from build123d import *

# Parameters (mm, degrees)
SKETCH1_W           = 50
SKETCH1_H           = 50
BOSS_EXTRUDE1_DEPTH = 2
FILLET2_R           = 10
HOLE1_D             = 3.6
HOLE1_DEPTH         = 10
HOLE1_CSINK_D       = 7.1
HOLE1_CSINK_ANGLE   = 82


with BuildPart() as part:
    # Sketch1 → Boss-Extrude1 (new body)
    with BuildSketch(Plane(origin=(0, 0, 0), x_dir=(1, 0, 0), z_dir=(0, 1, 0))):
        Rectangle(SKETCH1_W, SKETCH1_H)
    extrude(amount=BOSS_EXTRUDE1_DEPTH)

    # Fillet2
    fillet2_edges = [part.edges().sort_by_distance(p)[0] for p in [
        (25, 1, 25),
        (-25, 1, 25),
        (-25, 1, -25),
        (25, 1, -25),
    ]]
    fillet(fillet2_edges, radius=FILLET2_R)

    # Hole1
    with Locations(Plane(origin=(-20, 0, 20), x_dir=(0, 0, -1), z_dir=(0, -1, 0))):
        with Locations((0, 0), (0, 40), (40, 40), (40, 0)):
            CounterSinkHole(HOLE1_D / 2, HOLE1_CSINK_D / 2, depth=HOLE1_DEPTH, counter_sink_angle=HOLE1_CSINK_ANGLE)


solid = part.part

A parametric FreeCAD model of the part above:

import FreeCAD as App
import Part
import Sketcher
from FreeCAD import Vector
Q = App.Units.Quantity


def edges_at(feature, points):
    """Names of the edges that pass closest to the given points."""
    edges = feature.Shape.Edges
    near = lambda p: min(range(len(edges)), key=lambda i: edges[i].distToShape(Part.Vertex(*p))[0])
    return sorted({f"Edge{near(p) + 1}" for p in points})


def add_polygon(sketch, points):
    """Adds a closed chain of lines whose ends are joined by coincident constraints."""
    first, n = sketch.GeometryCount, len(points)
    for a, b in zip(points, points[1:] + points[:1]):
        sketch.addGeometry(Part.LineSegment(App.Vector(*a, 0), App.Vector(*b, 0)), False)
    for i in range(n):
        sketch.addConstraint(Sketcher.Constraint("Coincident", first + i, 2, first + (i + 1) % n, 1))

doc = App.newDocument("Part")
body = doc.addObject("PartDesign::Body", "Body")

sketch1 = doc.addObject("Sketcher::SketchObject", "Sketch")
body.addObject(sketch1)
sketch1.AttachmentSupport = (doc.XZ_Plane, [""])
sketch1.MapMode = "FlatFace"
add_polygon(sketch1, [(-25, -25), (-25, 25), (25, 25), (25, -25)])
sketch1.addConstraint(Sketcher.Constraint("Vertical", 0))
sketch1.addConstraint(Sketcher.Constraint("Horizontal", 1))
sketch1.addConstraint(Sketcher.Constraint("Vertical", 2))
sketch1.addConstraint(Sketcher.Constraint("Horizontal", 3))
sketch1.addConstraint(Sketcher.Constraint("Symmetric", 0, 2, 2, 2, -1, 1))
sketch1.addConstraint(Sketcher.Constraint("Equal", 3, 0))
sketch1.addConstraint(Sketcher.Constraint("DistanceX", 1, 1, 1, 2, Q("50 mm")))
pad1 = doc.addObject("PartDesign::Pad", "Pad")
body.addObject(pad1)
pad1.Profile = sketch1
pad1.Length = 2
pad1.Reversed = True
doc.recompute()

fillet = doc.addObject("PartDesign::Fillet", "Fillet")
body.addObject(fillet)
fillet.Base = (pad1, edges_at(pad1, [
    (25, 1, 25),
    (-25, 1, 25),
    (-25, 1, -25),
    (25, 1, -25),
]))
fillet.Radius = 10

sketch2 = doc.addObject("Sketcher::SketchObject", "Sketch001")
body.addObject(sketch2)
sketch2.AttachmentSupport = (doc.XZ_Plane, [""])
sketch2.MapMode = "FlatFace"
sketch2.addGeometry(Part.Circle(Vector(-20, 20, 0), Vector(0, 0, 1), 1.8), False)
sketch2.addGeometry(Part.Circle(Vector(20, 20, 0), Vector(0, 0, 1), 1.8), False)
sketch2.addGeometry(Part.Circle(Vector(20, -20, 0), Vector(0, 0, 1), 1.8), False)
sketch2.addGeometry(Part.Circle(Vector(-20, -20, 0), Vector(0, 0, 1), 1.8), False)
sketch2.addConstraint(Sketcher.Constraint("Equal", 0, 1))
sketch2.addConstraint(Sketcher.Constraint("Equal", 1, 2))
sketch2.addConstraint(Sketcher.Constraint("Equal", 2, 3))
sketch2.addConstraint(Sketcher.Constraint("Symmetric", 0, 3, 2, 3, -1, 1))
sketch2.addConstraint(Sketcher.Constraint("Symmetric", 1, 3, 3, 3, -1, 1))
sketch2.addConstraint(Sketcher.Constraint("Symmetric", 0, 3, 1, 3, -2))
sketch2.addConstraint(Sketcher.Constraint("Diameter", 0, Q("3.6 mm")))
sketch2.addConstraint(Sketcher.Constraint("DistanceX", 0, 3, -1, 1, Q("20 mm")))
sketch2.addConstraint(Sketcher.Constraint("DistanceY", -1, 1, 0, 3, Q("20 mm")))
doc.recompute()
hole = doc.addObject("PartDesign::Hole", "Hole")
body.addObject(hole)
hole.Profile = sketch2
hole.ThreadType = "None"
hole.Diameter = 3.6
hole.DepthType = "Dimension"
hole.Depth = 10
hole.DrillPoint = "Flat"
hole.HoleCutType = "Countersink"
hole.HoleCutDiameter = 7.1
hole.HoleCutCountersinkAngle = 82

doc.recompute()
